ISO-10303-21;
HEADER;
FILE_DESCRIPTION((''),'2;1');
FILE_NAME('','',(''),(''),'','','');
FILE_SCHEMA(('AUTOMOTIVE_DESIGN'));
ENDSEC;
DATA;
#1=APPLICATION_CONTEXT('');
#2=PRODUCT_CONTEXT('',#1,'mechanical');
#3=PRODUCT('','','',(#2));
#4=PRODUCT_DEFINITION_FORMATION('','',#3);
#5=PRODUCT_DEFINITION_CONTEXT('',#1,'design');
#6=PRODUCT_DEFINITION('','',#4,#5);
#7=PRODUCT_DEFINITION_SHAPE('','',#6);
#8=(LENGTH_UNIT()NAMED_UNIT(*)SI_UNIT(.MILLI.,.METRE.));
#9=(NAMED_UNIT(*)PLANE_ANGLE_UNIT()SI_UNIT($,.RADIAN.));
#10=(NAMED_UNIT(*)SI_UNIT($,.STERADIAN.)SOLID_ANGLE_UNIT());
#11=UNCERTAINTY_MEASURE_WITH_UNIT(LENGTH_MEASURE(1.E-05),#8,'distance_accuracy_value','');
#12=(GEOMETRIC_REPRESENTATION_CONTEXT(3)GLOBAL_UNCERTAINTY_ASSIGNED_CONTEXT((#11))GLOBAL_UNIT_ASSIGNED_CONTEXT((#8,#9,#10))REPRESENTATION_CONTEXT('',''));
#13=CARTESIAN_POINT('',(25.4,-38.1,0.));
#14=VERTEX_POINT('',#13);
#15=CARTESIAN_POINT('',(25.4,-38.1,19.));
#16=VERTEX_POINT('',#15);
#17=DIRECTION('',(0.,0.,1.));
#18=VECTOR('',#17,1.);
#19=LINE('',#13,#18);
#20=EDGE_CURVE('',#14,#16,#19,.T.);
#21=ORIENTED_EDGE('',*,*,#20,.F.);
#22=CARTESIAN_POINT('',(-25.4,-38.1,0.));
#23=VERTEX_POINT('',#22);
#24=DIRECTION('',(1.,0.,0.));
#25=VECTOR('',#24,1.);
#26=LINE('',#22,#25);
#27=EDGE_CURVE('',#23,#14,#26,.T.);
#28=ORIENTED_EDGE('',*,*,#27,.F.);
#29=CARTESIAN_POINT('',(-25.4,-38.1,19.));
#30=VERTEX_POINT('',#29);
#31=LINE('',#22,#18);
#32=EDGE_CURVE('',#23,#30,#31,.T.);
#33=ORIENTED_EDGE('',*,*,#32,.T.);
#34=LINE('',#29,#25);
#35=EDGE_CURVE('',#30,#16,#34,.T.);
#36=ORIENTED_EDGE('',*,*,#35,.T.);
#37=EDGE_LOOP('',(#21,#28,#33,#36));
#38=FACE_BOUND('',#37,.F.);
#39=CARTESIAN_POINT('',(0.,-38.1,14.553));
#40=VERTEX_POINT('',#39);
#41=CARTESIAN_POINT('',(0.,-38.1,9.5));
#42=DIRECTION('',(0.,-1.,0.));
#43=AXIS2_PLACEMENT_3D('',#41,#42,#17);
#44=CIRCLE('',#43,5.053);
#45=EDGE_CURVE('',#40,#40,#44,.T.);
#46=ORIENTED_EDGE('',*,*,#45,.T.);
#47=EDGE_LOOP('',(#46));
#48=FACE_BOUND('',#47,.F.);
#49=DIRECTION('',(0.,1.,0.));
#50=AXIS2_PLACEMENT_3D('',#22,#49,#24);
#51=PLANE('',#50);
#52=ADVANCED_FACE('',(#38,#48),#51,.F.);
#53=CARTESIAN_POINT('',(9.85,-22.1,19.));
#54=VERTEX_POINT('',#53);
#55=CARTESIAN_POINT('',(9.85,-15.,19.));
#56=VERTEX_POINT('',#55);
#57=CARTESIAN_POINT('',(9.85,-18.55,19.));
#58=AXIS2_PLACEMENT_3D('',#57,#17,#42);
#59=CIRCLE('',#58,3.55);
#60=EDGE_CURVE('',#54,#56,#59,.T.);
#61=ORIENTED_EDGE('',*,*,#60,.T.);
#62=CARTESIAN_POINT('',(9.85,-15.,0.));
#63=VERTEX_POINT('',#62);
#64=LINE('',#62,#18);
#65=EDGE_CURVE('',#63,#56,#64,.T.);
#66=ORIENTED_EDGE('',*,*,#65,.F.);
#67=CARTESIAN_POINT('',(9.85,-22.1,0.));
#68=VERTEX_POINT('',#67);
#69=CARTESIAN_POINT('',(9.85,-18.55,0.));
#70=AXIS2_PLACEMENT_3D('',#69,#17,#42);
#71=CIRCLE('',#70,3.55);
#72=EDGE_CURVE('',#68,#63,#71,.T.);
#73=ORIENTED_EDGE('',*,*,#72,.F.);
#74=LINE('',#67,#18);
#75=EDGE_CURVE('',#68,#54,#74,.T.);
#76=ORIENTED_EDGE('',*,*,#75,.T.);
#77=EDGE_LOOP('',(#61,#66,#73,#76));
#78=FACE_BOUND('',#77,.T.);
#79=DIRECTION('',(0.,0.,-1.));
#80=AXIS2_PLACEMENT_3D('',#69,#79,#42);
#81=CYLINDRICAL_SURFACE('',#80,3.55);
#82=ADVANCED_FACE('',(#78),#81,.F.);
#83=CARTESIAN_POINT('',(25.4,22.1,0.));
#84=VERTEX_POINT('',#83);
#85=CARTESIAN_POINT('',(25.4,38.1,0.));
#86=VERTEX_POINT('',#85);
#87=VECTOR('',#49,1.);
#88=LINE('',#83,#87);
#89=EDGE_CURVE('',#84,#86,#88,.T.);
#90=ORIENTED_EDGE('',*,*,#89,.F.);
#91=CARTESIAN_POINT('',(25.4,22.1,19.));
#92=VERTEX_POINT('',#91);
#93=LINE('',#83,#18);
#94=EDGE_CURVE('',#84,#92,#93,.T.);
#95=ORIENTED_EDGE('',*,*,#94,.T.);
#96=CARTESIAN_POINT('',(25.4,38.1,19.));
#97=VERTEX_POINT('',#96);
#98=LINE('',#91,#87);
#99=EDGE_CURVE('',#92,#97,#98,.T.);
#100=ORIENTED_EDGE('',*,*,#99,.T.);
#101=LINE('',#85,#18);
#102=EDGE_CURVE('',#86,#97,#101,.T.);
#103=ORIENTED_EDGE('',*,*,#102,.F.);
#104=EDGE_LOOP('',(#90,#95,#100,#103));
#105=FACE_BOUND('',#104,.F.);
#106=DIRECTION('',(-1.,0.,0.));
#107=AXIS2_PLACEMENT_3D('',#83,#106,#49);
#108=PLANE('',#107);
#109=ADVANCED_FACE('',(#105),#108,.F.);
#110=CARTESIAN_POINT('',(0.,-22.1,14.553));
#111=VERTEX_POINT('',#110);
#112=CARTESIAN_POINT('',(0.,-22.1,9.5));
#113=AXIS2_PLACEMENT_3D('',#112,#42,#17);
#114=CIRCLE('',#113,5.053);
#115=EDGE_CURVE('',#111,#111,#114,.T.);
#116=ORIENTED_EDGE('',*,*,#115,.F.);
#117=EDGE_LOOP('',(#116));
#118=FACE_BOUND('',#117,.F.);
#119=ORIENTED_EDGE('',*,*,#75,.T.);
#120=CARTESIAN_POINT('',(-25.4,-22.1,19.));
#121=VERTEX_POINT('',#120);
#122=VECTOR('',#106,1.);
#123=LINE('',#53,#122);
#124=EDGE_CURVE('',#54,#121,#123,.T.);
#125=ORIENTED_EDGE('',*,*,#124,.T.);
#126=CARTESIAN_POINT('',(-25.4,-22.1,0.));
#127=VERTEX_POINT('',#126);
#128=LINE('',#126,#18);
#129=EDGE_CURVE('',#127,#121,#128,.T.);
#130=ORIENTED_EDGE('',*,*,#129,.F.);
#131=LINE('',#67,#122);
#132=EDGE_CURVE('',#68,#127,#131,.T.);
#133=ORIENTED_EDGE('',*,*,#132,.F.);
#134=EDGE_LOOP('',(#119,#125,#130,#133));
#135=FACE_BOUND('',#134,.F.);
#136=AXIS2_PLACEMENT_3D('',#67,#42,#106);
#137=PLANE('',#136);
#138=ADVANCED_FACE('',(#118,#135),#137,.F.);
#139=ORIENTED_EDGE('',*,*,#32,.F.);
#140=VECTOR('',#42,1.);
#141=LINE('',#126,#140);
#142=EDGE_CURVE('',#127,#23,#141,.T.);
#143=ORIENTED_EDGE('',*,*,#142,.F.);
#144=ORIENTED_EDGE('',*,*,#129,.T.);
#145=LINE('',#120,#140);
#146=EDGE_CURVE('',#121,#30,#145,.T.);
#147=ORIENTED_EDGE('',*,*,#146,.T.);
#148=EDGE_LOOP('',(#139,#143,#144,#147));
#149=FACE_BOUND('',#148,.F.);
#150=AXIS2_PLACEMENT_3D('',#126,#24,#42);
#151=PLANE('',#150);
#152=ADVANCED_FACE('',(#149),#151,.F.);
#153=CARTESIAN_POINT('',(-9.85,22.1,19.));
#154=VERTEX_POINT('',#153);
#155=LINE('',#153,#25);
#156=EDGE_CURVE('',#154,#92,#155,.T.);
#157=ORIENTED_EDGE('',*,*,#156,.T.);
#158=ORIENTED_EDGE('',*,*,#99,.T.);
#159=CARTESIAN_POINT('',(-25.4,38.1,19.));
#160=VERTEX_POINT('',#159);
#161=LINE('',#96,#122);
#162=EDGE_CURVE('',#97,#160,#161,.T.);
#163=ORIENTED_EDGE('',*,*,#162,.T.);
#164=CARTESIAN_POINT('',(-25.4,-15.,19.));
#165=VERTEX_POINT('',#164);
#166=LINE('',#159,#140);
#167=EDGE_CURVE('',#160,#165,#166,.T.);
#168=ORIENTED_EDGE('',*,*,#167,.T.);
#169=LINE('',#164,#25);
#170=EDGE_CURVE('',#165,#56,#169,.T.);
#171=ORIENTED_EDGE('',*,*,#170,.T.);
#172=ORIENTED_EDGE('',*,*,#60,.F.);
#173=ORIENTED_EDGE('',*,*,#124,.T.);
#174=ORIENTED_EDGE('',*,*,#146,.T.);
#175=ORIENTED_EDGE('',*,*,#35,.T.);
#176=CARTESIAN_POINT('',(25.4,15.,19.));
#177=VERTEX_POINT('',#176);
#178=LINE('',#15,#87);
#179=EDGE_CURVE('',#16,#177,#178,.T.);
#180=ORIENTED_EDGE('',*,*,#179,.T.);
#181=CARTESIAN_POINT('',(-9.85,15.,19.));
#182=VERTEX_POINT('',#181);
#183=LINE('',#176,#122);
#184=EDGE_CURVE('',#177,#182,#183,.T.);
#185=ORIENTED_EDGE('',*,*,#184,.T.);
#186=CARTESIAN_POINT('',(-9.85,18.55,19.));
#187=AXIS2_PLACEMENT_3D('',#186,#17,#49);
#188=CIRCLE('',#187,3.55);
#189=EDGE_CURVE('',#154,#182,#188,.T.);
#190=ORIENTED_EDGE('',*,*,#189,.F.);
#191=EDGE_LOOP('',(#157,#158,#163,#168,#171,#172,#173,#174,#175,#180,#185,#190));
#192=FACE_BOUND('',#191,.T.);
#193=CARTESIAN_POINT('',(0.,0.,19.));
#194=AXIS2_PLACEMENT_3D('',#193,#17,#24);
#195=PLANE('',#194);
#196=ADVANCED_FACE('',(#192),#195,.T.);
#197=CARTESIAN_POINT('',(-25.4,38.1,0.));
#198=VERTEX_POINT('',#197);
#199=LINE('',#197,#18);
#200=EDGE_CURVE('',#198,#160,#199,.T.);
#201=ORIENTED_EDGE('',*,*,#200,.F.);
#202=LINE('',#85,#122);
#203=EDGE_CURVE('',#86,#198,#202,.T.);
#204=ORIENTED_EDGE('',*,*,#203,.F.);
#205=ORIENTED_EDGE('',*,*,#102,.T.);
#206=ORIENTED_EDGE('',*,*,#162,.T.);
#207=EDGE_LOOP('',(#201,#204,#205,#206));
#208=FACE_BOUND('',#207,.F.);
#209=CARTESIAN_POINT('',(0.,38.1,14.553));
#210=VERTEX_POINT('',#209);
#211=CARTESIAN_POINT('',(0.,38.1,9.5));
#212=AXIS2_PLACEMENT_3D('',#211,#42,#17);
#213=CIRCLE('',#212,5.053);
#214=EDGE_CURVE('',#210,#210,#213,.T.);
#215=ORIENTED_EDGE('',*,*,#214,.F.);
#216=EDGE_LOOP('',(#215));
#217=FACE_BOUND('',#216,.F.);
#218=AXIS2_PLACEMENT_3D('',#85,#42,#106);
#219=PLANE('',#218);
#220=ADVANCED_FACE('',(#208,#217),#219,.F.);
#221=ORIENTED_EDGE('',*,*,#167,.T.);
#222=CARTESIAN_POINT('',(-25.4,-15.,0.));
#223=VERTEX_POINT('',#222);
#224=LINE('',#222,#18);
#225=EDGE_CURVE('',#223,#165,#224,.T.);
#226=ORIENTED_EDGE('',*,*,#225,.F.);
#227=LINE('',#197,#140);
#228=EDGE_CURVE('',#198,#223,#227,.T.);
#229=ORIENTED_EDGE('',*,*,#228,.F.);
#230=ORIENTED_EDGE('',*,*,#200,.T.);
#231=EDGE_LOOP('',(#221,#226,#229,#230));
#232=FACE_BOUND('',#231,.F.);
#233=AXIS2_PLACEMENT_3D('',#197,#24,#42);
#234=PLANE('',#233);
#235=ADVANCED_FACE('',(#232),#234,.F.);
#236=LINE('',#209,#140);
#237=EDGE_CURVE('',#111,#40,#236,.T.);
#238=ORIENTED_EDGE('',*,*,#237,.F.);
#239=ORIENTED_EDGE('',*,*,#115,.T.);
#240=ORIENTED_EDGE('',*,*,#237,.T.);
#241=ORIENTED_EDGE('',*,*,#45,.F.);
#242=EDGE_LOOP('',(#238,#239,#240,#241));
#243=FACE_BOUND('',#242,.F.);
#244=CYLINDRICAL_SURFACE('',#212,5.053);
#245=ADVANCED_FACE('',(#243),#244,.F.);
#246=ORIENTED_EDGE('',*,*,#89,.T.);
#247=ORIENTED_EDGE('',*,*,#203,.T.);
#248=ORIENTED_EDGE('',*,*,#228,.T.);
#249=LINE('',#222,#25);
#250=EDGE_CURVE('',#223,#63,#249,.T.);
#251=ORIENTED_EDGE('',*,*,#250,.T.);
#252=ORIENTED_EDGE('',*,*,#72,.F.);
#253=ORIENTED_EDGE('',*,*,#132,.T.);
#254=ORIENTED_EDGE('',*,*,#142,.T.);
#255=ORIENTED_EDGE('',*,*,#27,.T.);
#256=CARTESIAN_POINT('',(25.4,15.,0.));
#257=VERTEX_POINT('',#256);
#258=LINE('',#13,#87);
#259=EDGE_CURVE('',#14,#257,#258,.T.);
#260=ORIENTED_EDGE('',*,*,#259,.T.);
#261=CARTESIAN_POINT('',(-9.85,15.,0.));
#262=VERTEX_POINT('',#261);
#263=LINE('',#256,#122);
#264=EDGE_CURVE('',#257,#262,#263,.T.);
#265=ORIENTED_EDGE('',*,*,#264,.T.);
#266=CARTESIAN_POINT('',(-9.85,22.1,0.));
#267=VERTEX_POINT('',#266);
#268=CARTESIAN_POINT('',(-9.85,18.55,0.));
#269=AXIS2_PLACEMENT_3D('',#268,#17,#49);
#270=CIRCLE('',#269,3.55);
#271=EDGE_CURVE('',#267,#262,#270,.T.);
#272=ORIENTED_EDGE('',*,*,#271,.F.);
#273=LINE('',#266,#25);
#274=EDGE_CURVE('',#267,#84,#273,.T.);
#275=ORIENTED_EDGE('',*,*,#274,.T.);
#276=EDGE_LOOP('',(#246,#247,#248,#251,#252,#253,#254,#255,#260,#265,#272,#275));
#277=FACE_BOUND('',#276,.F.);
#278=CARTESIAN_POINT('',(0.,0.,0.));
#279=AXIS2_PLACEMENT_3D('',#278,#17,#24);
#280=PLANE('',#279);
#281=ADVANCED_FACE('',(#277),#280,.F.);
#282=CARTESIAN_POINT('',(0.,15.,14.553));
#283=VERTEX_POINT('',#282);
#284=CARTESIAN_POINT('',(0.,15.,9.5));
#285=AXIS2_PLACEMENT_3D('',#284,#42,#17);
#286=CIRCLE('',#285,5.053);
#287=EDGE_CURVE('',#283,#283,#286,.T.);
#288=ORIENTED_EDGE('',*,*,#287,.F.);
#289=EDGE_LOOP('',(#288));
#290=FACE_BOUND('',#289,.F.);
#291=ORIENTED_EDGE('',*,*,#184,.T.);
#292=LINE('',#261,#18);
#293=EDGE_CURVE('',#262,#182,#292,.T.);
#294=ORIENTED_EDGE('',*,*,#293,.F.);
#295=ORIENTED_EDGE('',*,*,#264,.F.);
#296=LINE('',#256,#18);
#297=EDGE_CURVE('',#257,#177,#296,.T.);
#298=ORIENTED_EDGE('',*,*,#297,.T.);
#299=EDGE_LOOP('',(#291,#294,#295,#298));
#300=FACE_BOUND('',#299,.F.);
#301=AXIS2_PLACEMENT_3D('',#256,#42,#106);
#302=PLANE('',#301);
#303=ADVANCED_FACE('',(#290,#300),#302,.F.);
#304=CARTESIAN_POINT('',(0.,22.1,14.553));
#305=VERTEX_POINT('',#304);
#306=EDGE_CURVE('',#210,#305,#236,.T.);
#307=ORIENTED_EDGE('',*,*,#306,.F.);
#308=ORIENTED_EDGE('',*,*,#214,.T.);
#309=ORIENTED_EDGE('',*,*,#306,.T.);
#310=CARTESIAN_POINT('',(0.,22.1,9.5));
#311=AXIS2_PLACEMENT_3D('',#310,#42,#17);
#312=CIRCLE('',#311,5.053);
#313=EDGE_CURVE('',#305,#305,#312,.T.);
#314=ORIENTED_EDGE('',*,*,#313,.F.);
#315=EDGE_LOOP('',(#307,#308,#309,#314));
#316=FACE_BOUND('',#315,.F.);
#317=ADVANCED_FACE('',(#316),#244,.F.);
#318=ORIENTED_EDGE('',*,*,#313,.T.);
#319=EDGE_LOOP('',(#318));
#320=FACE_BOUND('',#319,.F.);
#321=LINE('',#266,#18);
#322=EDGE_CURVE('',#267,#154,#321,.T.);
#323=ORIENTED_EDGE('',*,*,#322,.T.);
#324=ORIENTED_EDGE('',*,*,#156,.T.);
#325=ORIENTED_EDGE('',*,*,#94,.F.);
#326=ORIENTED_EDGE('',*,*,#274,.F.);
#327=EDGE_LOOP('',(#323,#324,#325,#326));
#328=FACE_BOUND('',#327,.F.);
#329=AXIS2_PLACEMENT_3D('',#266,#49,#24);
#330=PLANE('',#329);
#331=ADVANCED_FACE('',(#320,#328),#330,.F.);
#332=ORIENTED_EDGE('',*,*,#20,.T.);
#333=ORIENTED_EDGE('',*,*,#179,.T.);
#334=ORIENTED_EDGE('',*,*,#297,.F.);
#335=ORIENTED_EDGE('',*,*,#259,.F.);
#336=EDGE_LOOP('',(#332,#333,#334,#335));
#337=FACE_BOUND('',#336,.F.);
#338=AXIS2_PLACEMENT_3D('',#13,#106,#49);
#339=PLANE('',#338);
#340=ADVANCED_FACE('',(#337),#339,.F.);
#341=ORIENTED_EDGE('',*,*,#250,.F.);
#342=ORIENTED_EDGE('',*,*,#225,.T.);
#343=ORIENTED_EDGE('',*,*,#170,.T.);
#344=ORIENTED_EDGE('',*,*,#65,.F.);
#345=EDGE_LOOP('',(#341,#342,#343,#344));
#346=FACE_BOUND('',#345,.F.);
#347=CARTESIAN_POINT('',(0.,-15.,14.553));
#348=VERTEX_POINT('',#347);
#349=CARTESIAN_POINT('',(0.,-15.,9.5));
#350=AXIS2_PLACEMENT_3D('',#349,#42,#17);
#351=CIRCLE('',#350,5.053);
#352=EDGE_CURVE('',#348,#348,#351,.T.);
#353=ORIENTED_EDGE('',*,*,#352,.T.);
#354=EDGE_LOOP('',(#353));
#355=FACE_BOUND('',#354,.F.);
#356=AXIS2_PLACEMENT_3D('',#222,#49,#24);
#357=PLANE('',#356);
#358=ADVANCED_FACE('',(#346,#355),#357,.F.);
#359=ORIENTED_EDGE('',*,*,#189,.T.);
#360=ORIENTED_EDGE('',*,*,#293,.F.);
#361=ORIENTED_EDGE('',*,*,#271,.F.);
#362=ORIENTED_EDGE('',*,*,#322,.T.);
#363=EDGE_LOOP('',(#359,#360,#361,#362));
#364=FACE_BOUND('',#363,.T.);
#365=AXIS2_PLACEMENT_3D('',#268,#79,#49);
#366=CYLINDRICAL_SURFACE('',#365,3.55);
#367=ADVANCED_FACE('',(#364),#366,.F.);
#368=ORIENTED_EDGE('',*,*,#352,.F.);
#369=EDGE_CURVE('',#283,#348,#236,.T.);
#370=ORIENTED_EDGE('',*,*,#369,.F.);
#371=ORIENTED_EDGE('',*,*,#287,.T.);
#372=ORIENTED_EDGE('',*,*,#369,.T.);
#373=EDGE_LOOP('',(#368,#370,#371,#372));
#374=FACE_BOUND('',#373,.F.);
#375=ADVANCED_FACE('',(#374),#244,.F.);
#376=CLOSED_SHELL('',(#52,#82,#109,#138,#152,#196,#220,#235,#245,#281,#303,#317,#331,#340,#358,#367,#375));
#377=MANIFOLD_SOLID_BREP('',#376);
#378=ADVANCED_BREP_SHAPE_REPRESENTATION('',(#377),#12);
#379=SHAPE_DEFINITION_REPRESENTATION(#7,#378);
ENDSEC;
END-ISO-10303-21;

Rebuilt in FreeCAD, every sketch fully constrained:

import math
import FreeCAD as App
import Part
import Sketcher

V = App.Vector
Q = App.Units.Quantity

doc = App.newDocument("Part")
body = doc.addObject("PartDesign::Body", "Body")

# Sketch on XY plane
sketch1 = body.newObject("Sketcher::SketchObject", "Sketch")
sketch1.AttachmentSupport = (doc.getObject("XY_Plane"), [""])
sketch1.MapMode = "FlatFace"
sketch1.addGeometry(Part.LineSegment(V(-9.8, 22.1, 0), V(25.4, 22.1, 0)), False)
sketch1.addGeometry(Part.LineSegment(V(25.4, 22.1, 0), V(25.4, 38.1, 0)), False)
sketch1.addGeometry(Part.LineSegment(V(25.4, 38.1, 0), V(-25.4, 38.1, 0)), False)
sketch1.addGeometry(Part.LineSegment(V(-25.4, 38.1, 0), V(-25.4, -15, 0)), False)
sketch1.addGeometry(Part.LineSegment(V(-25.4, -15, 0), V(9.8, -15, 0)), False)
sketch1.addGeometry(Part.ArcOfCircle(Part.Circle(V(9.8, -18.6, 0), V(0, 0, 1), 3.6), math.radians(-90), math.radians(90)), False)
sketch1.addGeometry(Part.LineSegment(V(9.8, -22.1, 0), V(-25.4, -22.1, 0)), False)
sketch1.addGeometry(Part.LineSegment(V(-25.4, -22.1, 0), V(-25.4, -38.1, 0)), False)
sketch1.addGeometry(Part.LineSegment(V(-25.4, -38.1, 0), V(25.4, -38.1, 0)), False)
sketch1.addGeometry(Part.LineSegment(V(25.4, -38.1, 0), V(25.4, 15, 0)), False)
sketch1.addGeometry(Part.LineSegment(V(25.4, 15, 0), V(-9.8, 15, 0)), False)
sketch1.addGeometry(Part.ArcOfCircle(Part.Circle(V(-9.8, 18.6, 0), V(0, 0, 1), 3.6), math.radians(90), math.radians(270)), False)
sketch1.addConstraint(Sketcher.Constraint("Coincident", 0, 2, 1, 1))
sketch1.addConstraint(Sketcher.Constraint("Coincident", 1, 2, 2, 1))
sketch1.addConstraint(Sketcher.Constraint("Coincident", 2, 2, 3, 1))
sketch1.addConstraint(Sketcher.Constraint("Coincident", 3, 2, 4, 1))
sketch1.addConstraint(Sketcher.Constraint("Tangent", 4, 2, 5, 2))
sketch1.addConstraint(Sketcher.Constraint("Tangent", 5, 1, 6, 1))
sketch1.addConstraint(Sketcher.Constraint("Coincident", 6, 2, 7, 1))
sketch1.addConstraint(Sketcher.Constraint("Coincident", 7, 2, 8, 1))
sketch1.addConstraint(Sketcher.Constraint("Coincident", 8, 2, 9, 1))
sketch1.addConstraint(Sketcher.Constraint("Coincident", 9, 2, 10, 1))
sketch1.addConstraint(Sketcher.Constraint("Tangent", 10, 2, 11, 2))
sketch1.addConstraint(Sketcher.Constraint("Tangent", 11, 1, 0, 1))
sketch1.addConstraint(Sketcher.Constraint("Horizontal", 0))
sketch1.addConstraint(Sketcher.Constraint("Vertical", 1))
sketch1.addConstraint(Sketcher.Constraint("Horizontal", 2))
sketch1.addConstraint(Sketcher.Constraint("Vertical", 3))
sketch1.addConstraint(Sketcher.Constraint("Horizontal", 4))
sketch1.addConstraint(Sketcher.Constraint("Horizontal", 6))
sketch1.addConstraint(Sketcher.Constraint("Vertical", 7))
sketch1.addConstraint(Sketcher.Constraint("Horizontal", 8))
sketch1.addConstraint(Sketcher.Constraint("Vertical", 9))
sketch1.addConstraint(Sketcher.Constraint("Horizontal", 10))
sketch1.addConstraint(Sketcher.Constraint("Equal", 5, 11))
sketch1.addConstraint(Sketcher.Constraint("Symmetric", 5, 3, 11, 3, -1, 1))
sketch1.addConstraint(Sketcher.Constraint("Symmetric", 1, 2, 7, 2, -1, 1))
sketch1.addConstraint(Sketcher.Constraint("Vertical", 3, 2, 6, 2))
sketch1.addConstraint(Sketcher.Constraint("Vertical", 1, 2, 8, 2))
sketch1.addConstraint(Sketcher.Constraint("DistanceY", 1, 1, 1, 2, Q("16 mm")))
sketch1.addConstraint(Sketcher.Constraint("Radius", 5, Q("3.55 mm")))
sketch1.addConstraint(Sketcher.Constraint("DistanceX", 2, 2, 2, 1, Q("50.8 mm")))
sketch1.addConstraint(Sketcher.Constraint("DistanceY", 4, 2, 9, 2, Q("30 mm")))
sketch1.addConstraint(Sketcher.Constraint("DistanceX", 0, 1, 0, 2, Q("35.25 mm")))
pad1 = body.newObject("PartDesign::Pad", "Pad")
pad1.Profile = sketch1
pad1.Length = 19

# Sketch on XZ plane
sketch2 = body.newObject("Sketcher::SketchObject", "Sketch001")
sketch2.AttachmentSupport = (doc.getObject("XZ_Plane"), [""])
sketch2.MapMode = "FlatFace"
sketch2.AttachmentOffset = App.Placement(V(0, 0, -38.1), App.Rotation())
sketch2.addGeometry(Part.Circle(V(0, 10, 0), V(0, 0, 1), 5), False)
sketch2.addConstraint(Sketcher.Constraint("PointOnObject", 0, 3, -2))
sketch2.addConstraint(Sketcher.Constraint("Diameter", 0, Q("10.106 mm")))
sketch2.addConstraint(Sketcher.Constraint("DistanceY", -1, 1, 0, 3, Q("9.5 mm")))
doc.recompute()
hole = body.newObject("PartDesign::Hole", "Hole")
hole.Profile = sketch2
hole.ThreadType = "None"
hole.Diameter = 10.106
hole.DepthType = "ThroughAll"
hole.Reversed = True

doc.recompute()
